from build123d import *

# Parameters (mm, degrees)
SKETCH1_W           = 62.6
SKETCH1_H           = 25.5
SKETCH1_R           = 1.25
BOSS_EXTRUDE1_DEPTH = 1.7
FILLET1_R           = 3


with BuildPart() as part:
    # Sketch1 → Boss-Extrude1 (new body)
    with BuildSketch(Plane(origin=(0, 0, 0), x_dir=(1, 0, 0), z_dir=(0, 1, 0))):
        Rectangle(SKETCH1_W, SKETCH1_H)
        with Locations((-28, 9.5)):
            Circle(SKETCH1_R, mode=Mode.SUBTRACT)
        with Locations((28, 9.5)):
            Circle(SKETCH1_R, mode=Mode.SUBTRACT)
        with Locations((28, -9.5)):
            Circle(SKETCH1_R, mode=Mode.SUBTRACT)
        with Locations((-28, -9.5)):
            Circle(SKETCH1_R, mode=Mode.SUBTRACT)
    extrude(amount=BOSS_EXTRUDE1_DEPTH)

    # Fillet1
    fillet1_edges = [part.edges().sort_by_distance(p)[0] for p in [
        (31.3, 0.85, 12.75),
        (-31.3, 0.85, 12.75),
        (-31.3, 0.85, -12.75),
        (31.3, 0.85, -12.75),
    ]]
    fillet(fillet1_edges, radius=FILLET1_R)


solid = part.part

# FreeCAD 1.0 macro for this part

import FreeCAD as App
import Part
import Sketcher
from FreeCAD import Vector
Q = App.Units.Quantity


def edges_at(feature, points):
    """Names of the edges that pass closest to the given points."""
    edges = feature.Shape.Edges
    near = lambda p: min(range(len(edges)), key=lambda i: edges[i].distToShape(Part.Vertex(*p))[0])
    return sorted({f"Edge{near(p) + 1}" for p in points})

doc = App.newDocument("Part")
body = doc.addObject("PartDesign::Body", "Body")

# Sketch on XZ plane
sketch1 = body.newObject("Sketcher::SketchObject", "Sketch")
sketch1.AttachmentSupport = (doc.getObject("XZ_Plane"), [""])
sketch1.MapMode = "FlatFace"
sketch1.addGeometry([
    Part.LineSegment(Vector(-31.3, -12.8, 0), Vector(-31.3, 12.8, 0)),  # 0
    Part.LineSegment(Vector(-31.3, 12.8, 0), Vector(31.3, 12.8, 0)),  # 1
    Part.LineSegment(Vector(31.3, 12.8, 0), Vector(31.3, -12.8, 0)),  # 2
    Part.LineSegment(Vector(31.3, -12.8, 0), Vector(-31.3, -12.8, 0)),  # 3
    Part.Circle(Vector(-28, 9.5, 0), Vector(0, 0, 1), 1.2),  # 4
    Part.Circle(Vector(28, 9.5, 0), Vector(0, 0, 1), 1.2),  # 5
    Part.Circle(Vector(-28, -9.5, 0), Vector(0, 0, 1), 1.2),  # 6
    Part.Circle(Vector(28, -9.5, 0), Vector(0, 0, 1), 1.2),  # 7
], False)
sketch1.addConstraint([
    Sketcher.Constraint("Coincident", 0, 2, 1, 1),
    Sketcher.Constraint("Coincident", 1, 2, 2, 1),
    Sketcher.Constraint("Coincident", 2, 2, 3, 1),
    Sketcher.Constraint("Coincident", 3, 2, 0, 1),
    Sketcher.Constraint("Vertical", 0),
    Sketcher.Constraint("Horizontal", 1),
    Sketcher.Constraint("Vertical", 2),
    Sketcher.Constraint("Horizontal", 3),
    Sketcher.Constraint("Equal", 4, 5),
    Sketcher.Constraint("Equal", 5, 6),
    Sketcher.Constraint("Equal", 6, 7),
    Sketcher.Constraint("Symmetric", 5, 3, 6, 3, -1, 1),
    Sketcher.Constraint("Symmetric", 4, 3, 7, 3, -1, 1),
    Sketcher.Constraint("Symmetric", 0, 2, 2, 2, -1, 1),
    Sketcher.Constraint("Symmetric", 4, 3, 5, 3, -2),
    Sketcher.Constraint("Diameter", 4, Q("2.5 mm")),
    Sketcher.Constraint("DistanceX", 1, 1, 1, 2, Q("62.6 mm")),
    Sketcher.Constraint("DistanceY", 0, 1, 0, 2, Q("25.5 mm")),
    Sketcher.Constraint("DistanceX", 4, 3, -1, 1, Q("28 mm")),
    Sketcher.Constraint("DistanceY", 6, 3, 4, 3, Q("19 mm")),
])
pad1 = body.newObject("PartDesign::Pad", "Pad")
pad1.Profile = sketch1
pad1.Length = 1.7
pad1.Reversed = True
doc.recompute()

fillet = body.newObject("PartDesign::Fillet", "Fillet")
fillet.Base = (pad1, edges_at(pad1, [
    (31.3, 0.85, 12.75),
    (-31.3, 0.85, 12.75),
    (-31.3, 0.85, -12.75),
    (31.3, 0.85, -12.75),
]))
fillet.Radius = 3

doc.recompute()
